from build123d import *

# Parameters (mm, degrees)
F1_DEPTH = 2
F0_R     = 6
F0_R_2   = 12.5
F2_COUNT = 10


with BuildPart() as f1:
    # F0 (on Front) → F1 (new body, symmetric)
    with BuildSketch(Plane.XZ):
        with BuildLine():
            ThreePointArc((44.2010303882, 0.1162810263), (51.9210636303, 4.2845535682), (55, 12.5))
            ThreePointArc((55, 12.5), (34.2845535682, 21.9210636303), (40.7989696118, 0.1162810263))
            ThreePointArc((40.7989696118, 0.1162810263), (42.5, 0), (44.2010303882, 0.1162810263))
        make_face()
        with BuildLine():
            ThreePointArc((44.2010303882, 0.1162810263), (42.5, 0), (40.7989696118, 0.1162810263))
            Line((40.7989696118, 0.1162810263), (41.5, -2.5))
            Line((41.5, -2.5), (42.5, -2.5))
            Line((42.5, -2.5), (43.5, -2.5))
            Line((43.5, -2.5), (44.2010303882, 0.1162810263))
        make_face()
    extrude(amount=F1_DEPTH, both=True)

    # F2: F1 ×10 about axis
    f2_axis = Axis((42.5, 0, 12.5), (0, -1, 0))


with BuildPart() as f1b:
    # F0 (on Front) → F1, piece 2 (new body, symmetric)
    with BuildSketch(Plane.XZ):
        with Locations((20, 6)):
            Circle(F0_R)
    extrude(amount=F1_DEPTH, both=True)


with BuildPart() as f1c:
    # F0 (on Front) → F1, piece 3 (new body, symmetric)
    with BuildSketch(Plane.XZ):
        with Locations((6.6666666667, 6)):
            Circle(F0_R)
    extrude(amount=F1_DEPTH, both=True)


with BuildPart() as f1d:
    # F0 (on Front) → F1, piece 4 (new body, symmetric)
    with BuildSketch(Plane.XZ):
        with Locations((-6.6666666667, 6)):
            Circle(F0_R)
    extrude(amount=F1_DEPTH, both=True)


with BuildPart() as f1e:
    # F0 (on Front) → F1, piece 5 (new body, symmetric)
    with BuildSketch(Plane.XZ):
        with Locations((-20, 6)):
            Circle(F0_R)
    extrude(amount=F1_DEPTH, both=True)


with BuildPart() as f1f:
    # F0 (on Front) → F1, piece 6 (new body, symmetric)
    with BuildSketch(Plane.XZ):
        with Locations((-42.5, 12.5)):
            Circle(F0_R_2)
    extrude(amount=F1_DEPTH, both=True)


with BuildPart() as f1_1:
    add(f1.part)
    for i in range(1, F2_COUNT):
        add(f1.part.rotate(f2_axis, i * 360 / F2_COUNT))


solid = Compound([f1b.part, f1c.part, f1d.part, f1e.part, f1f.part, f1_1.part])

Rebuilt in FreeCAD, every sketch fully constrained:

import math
import FreeCAD as App
import Part
import Sketcher
from FreeCAD import Vector
Q = App.Units.Quantity

doc = App.newDocument("Part")
params = doc.addObject("Spreadsheet::Sheet", "Params")
for row, (alias, value) in enumerate([
    ("sketch1_radius", "12.5 mm"),
    ("sketch1_width", "2 mm"),
    ("pad1_length", "4 mm"),
    ("sketch2_diameter", "12 mm"),
    ("pad2_length", "4 mm"),
    ("sketch3_diameter", "12 mm"),
    ("pad3_length", "4 mm"),
    ("sketch4_diameter", "12 mm"),
    ("pad4_length", "4 mm"),
    ("sketch5_diameter", "12 mm"),
    ("pad5_length", "4 mm"),
    ("sketch6_diameter", "25 mm"),
    ("pad6_length", "4 mm"),
], start=1):
    params.set(f"A{row}", alias)
    params.set(f"B{row}", "=" + value)
    params.setAlias(f"B{row}", alias)

body = doc.addObject("PartDesign::Body", "Body")

sketch1 = body.newObject("Sketcher::SketchObject", "Sketch")
sketch1.AttachmentSupport = (doc.getObject("XZ_Plane"), [""])
sketch1.MapMode = "FlatFace"
sketch1.addGeometry(Part.ArcOfCircle(Part.Circle(Vector(42.5, 12.5, 0), Vector(0, 0, 1), 12.5), math.radians(-82), math.radians(0)), False)
sketch1.addGeometry(Part.ArcOfCircle(Part.Circle(Vector(42.5, 12.5, 0), Vector(0, 0, 1), 12.5), math.radians(0), math.radians(262)), False)
sketch1.addGeometry(Part.LineSegment(Vector(40.8, 0.1, 0), Vector(41.5, -2.5, 0)), False)
sketch1.addGeometry(Part.LineSegment(Vector(41.5, -2.5, 0), Vector(43.5, -2.5, 0)), False)
sketch1.addGeometry(Part.LineSegment(Vector(43.5, -2.5, 0), Vector(44.2, 0.1, 0)), False)
sketch1.addConstraint(Sketcher.Constraint("Tangent", 0, 2, 1, 1))
sketch1.addConstraint(Sketcher.Constraint("Coincident", 1, 2, 2, 1))
sketch1.addConstraint(Sketcher.Constraint("Coincident", 2, 2, 3, 1))
sketch1.addConstraint(Sketcher.Constraint("Coincident", 3, 2, 4, 1))
sketch1.addConstraint(Sketcher.Constraint("Coincident", 4, 2, 0, 1))
sketch1.addConstraint(Sketcher.Constraint("Horizontal", 3))
sketch1.addConstraint(Sketcher.Constraint("Equal", 0, 1))
sketch1.addConstraint(Sketcher.Constraint("Horizontal", 1, 3, 0, 2))
sketch1.addConstraint(Sketcher.Constraint("Horizontal", 1, 2, 4, 2))
sketch1.addConstraint(Sketcher.Constraint("Equal", 2, 4))
sketch1.addConstraint(Sketcher.Constraint("Radius", 0, Q("12.5 mm")))
sketch1.addConstraint(Sketcher.Constraint("DistanceX", 3, 1, 3, 2, Q("2 mm")))
sketch1.addConstraint(Sketcher.Constraint("Angle", 2, Q("-75 deg")))
sketch1.addConstraint(Sketcher.Constraint("DistanceX", -1, 1, 0, 2, Q("55 mm")))
sketch1.addConstraint(Sketcher.Constraint("DistanceY", 2, 2, 0, 3, Q("15 mm")))
sketch1.addConstraint(Sketcher.Constraint("DistanceY", -1, 1, 0, 3, Q("12.5 mm")))
sketch1.setExpression("Constraints[10]", "Params.sketch1_radius")
sketch1.setExpression("Constraints[11]", "Params.sketch1_width")
pad1 = body.newObject("PartDesign::Pad", "Pad")
pad1.Profile = sketch1
pad1.setExpression("Length", "Params.pad1_length")
pad1.Midplane = True
body2 = doc.addObject("PartDesign::Body", "Body001")

sketch2 = body2.newObject("Sketcher::SketchObject", "Sketch001")
sketch2.AttachmentSupport = (doc.getObject("XZ_Plane001"), [""])
sketch2.MapMode = "FlatFace"
sketch2.addGeometry(Part.Circle(Vector(20, 6, 0), Vector(0, 0, 1), 6), False)
sketch2.addConstraint(Sketcher.Constraint("Diameter", 0, Q("12 mm")))
sketch2.addConstraint(Sketcher.Constraint("DistanceX", -1, 1, 0, 3, Q("20 mm")))
sketch2.addConstraint(Sketcher.Constraint("DistanceY", -1, 1, 0, 3, Q("6 mm")))
sketch2.setExpression("Constraints[0]", "Params.sketch2_diameter")
pad2 = body2.newObject("PartDesign::Pad", "Pad001")
pad2.Profile = sketch2
pad2.setExpression("Length", "Params.pad2_length")
pad2.Midplane = True
body3 = doc.addObject("PartDesign::Body", "Body002")

sketch3 = body3.newObject("Sketcher::SketchObject", "Sketch002")
sketch3.AttachmentSupport = (doc.getObject("XZ_Plane002"), [""])
sketch3.MapMode = "FlatFace"
sketch3.addGeometry(Part.Circle(Vector(7, 6, 0), Vector(0, 0, 1), 6), False)
sketch3.addConstraint(Sketcher.Constraint("Diameter", 0, Q("12 mm")))
sketch3.addConstraint(Sketcher.Constraint("DistanceY", -1, 1, 0, 3, Q("6 mm")))
sketch3.addConstraint(Sketcher.Constraint("DistanceX", -1, 1, 0, 3, Q("6.666667 mm")))
sketch3.setExpression("Constraints[0]", "Params.sketch3_diameter")
pad3 = body3.newObject("PartDesign::Pad", "Pad002")
pad3.Profile = sketch3
pad3.setExpression("Length", "Params.pad3_length")
pad3.Midplane = True
body4 = doc.addObject("PartDesign::Body", "Body003")

sketch4 = body4.newObject("Sketcher::SketchObject", "Sketch003")
sketch4.AttachmentSupport = (doc.getObject("XZ_Plane003"), [""])
sketch4.MapMode = "FlatFace"
sketch4.addGeometry(Part.Circle(Vector(-7, 6, 0), Vector(0, 0, 1), 6), False)
sketch4.addConstraint(Sketcher.Constraint("Diameter", 0, Q("12 mm")))
sketch4.addConstraint(Sketcher.Constraint("DistanceY", -1, 1, 0, 3, Q("6 mm")))
sketch4.addConstraint(Sketcher.Constraint("DistanceX", 0, 3, -1, 1, Q("6.666667 mm")))
sketch4.setExpression("Constraints[0]", "Params.sketch4_diameter")
pad4 = body4.newObject("PartDesign::Pad", "Pad003")
pad4.Profile = sketch4
pad4.setExpression("Length", "Params.pad4_length")
pad4.Midplane = True
body5 = doc.addObject("PartDesign::Body", "Body004")

sketch5 = body5.newObject("Sketcher::SketchObject", "Sketch004")
sketch5.AttachmentSupport = (doc.getObject("XZ_Plane004"), [""])
sketch5.MapMode = "FlatFace"
sketch5.addGeometry(Part.Circle(Vector(-20, 6, 0), Vector(0, 0, 1), 6), False)
sketch5.addConstraint(Sketcher.Constraint("Diameter", 0, Q("12 mm")))
sketch5.addConstraint(Sketcher.Constraint("DistanceX", 0, 3, -1, 1, Q("20 mm")))
sketch5.addConstraint(Sketcher.Constraint("DistanceY", -1, 1, 0, 3, Q("6 mm")))
sketch5.setExpression("Constraints[0]", "Params.sketch5_diameter")
pad5 = body5.newObject("PartDesign::Pad", "Pad004")
pad5.Profile = sketch5
pad5.setExpression("Length", "Params.pad5_length")
pad5.Midplane = True
body6 = doc.addObject("PartDesign::Body", "Body005")

sketch6 = body6.newObject("Sketcher::SketchObject", "Sketch005")
sketch6.AttachmentSupport = (doc.getObject("XZ_Plane005"), [""])
sketch6.MapMode = "FlatFace"
sketch6.addGeometry(Part.Circle(Vector(-42, 12, 0), Vector(0, 0, 1), 12), False)
sketch6.addConstraint(Sketcher.Constraint("Diameter", 0, Q("25 mm")))
sketch6.addConstraint(Sketcher.Constraint("DistanceX", 0, 3, -1, 1, Q("42.5 mm")))
sketch6.addConstraint(Sketcher.Constraint("DistanceY", -1, 1, 0, 3, Q("12.5 mm")))
sketch6.setExpression("Constraints[0]", "Params.sketch6_diameter")
pad6 = body6.newObject("PartDesign::Pad", "Pad005")
pad6.Profile = sketch6
pad6.setExpression("Length", "Params.pad6_length")
pad6.Midplane = True
body7 = doc.addObject("PartDesign::Body", "Body006")
doc.recompute()

body7.BaseFeature = body
doc.recompute()

body8 = doc.addObject("PartDesign::Body", "Body007")
body8.BaseFeature = body
body8.Placement = App.Placement(Vector(15.464093, 0, -22.593586), App.Rotation(Vector(0, -1, 0), 36))
boolean = body7.newObject("PartDesign::Boolean", "Boolean")
boolean.Type = "Fuse"
boolean.addObjects([body8])
doc.recompute()

body9 = doc.addObject("PartDesign::Body", "Body008")
body9.BaseFeature = body
body9.Placement = App.Placement(Vector(41.254984, 0, -31.782614), App.Rotation(Vector(0, -1, 0), 72))
boolean2 = body7.newObject("PartDesign::Boolean", "Boolean001")
boolean2.Type = "Fuse"
boolean2.addObjects([body9])
doc.recompute()

body10 = doc.addObject("PartDesign::Body", "Body009")
body10.BaseFeature = body
body10.Placement = App.Placement(Vector(67.521429, 0, -24.05719), App.Rotation(Vector(0, -1, 0), 108))
boolean3 = body7.newObject("PartDesign::Boolean", "Boolean002")
boolean3.Type = "Fuse"
boolean3.addObjects([body10])
doc.recompute()

body11 = doc.addObject("PartDesign::Body", "Body010")
body11.BaseFeature = body
body11.Placement = App.Placement(Vector(84.230538, 0, -2.368161), App.Rotation(Vector(0, -1, 0), 144))
boolean4 = body7.newObject("PartDesign::Boolean", "Boolean003")
boolean4.Type = "Fuse"
boolean4.addObjects([body11])
doc.recompute()

body12 = doc.addObject("PartDesign::Body", "Body011")
body12.BaseFeature = body
body12.Placement = App.Placement(Vector(85, 0, 25), App.Rotation(Vector(0, -1, 0), 180))
boolean5 = body7.newObject("PartDesign::Boolean", "Boolean004")
boolean5.Type = "Fuse"
boolean5.addObjects([body12])
doc.recompute()

body13 = doc.addObject("PartDesign::Body", "Body012")
body13.BaseFeature = body
body13.Placement = App.Placement(Vector(69.535907, 0, 47.593586), App.Rotation(Vector(0, -1, 0), 216))
boolean6 = body7.newObject("PartDesign::Boolean", "Boolean005")
boolean6.Type = "Fuse"
boolean6.addObjects([body13])
doc.recompute()

body14 = doc.addObject("PartDesign::Body", "Body013")
body14.BaseFeature = body
body14.Placement = App.Placement(Vector(43.745016, 0, 56.782614), App.Rotation(Vector(0, -1, 0), 252))
boolean7 = body7.newObject("PartDesign::Boolean", "Boolean006")
boolean7.Type = "Fuse"
boolean7.addObjects([body14])
doc.recompute()

body15 = doc.addObject("PartDesign::Body", "Body014")
body15.BaseFeature = body
body15.Placement = App.Placement(Vector(17.478571, 0, 49.05719), App.Rotation(Vector(0, -1, 0), 288))
boolean8 = body7.newObject("PartDesign::Boolean", "Boolean007")
boolean8.Type = "Fuse"
boolean8.addObjects([body15])
doc.recompute()

body.Placement = App.Placement(Vector(0.769462, 0, 27.368161), App.Rotation(Vector(0, -1, 0), 324))
boolean9 = body7.newObject("PartDesign::Boolean", "Boolean008")
boolean9.Type = "Fuse"
boolean9.addObjects([body])

doc.recompute()
